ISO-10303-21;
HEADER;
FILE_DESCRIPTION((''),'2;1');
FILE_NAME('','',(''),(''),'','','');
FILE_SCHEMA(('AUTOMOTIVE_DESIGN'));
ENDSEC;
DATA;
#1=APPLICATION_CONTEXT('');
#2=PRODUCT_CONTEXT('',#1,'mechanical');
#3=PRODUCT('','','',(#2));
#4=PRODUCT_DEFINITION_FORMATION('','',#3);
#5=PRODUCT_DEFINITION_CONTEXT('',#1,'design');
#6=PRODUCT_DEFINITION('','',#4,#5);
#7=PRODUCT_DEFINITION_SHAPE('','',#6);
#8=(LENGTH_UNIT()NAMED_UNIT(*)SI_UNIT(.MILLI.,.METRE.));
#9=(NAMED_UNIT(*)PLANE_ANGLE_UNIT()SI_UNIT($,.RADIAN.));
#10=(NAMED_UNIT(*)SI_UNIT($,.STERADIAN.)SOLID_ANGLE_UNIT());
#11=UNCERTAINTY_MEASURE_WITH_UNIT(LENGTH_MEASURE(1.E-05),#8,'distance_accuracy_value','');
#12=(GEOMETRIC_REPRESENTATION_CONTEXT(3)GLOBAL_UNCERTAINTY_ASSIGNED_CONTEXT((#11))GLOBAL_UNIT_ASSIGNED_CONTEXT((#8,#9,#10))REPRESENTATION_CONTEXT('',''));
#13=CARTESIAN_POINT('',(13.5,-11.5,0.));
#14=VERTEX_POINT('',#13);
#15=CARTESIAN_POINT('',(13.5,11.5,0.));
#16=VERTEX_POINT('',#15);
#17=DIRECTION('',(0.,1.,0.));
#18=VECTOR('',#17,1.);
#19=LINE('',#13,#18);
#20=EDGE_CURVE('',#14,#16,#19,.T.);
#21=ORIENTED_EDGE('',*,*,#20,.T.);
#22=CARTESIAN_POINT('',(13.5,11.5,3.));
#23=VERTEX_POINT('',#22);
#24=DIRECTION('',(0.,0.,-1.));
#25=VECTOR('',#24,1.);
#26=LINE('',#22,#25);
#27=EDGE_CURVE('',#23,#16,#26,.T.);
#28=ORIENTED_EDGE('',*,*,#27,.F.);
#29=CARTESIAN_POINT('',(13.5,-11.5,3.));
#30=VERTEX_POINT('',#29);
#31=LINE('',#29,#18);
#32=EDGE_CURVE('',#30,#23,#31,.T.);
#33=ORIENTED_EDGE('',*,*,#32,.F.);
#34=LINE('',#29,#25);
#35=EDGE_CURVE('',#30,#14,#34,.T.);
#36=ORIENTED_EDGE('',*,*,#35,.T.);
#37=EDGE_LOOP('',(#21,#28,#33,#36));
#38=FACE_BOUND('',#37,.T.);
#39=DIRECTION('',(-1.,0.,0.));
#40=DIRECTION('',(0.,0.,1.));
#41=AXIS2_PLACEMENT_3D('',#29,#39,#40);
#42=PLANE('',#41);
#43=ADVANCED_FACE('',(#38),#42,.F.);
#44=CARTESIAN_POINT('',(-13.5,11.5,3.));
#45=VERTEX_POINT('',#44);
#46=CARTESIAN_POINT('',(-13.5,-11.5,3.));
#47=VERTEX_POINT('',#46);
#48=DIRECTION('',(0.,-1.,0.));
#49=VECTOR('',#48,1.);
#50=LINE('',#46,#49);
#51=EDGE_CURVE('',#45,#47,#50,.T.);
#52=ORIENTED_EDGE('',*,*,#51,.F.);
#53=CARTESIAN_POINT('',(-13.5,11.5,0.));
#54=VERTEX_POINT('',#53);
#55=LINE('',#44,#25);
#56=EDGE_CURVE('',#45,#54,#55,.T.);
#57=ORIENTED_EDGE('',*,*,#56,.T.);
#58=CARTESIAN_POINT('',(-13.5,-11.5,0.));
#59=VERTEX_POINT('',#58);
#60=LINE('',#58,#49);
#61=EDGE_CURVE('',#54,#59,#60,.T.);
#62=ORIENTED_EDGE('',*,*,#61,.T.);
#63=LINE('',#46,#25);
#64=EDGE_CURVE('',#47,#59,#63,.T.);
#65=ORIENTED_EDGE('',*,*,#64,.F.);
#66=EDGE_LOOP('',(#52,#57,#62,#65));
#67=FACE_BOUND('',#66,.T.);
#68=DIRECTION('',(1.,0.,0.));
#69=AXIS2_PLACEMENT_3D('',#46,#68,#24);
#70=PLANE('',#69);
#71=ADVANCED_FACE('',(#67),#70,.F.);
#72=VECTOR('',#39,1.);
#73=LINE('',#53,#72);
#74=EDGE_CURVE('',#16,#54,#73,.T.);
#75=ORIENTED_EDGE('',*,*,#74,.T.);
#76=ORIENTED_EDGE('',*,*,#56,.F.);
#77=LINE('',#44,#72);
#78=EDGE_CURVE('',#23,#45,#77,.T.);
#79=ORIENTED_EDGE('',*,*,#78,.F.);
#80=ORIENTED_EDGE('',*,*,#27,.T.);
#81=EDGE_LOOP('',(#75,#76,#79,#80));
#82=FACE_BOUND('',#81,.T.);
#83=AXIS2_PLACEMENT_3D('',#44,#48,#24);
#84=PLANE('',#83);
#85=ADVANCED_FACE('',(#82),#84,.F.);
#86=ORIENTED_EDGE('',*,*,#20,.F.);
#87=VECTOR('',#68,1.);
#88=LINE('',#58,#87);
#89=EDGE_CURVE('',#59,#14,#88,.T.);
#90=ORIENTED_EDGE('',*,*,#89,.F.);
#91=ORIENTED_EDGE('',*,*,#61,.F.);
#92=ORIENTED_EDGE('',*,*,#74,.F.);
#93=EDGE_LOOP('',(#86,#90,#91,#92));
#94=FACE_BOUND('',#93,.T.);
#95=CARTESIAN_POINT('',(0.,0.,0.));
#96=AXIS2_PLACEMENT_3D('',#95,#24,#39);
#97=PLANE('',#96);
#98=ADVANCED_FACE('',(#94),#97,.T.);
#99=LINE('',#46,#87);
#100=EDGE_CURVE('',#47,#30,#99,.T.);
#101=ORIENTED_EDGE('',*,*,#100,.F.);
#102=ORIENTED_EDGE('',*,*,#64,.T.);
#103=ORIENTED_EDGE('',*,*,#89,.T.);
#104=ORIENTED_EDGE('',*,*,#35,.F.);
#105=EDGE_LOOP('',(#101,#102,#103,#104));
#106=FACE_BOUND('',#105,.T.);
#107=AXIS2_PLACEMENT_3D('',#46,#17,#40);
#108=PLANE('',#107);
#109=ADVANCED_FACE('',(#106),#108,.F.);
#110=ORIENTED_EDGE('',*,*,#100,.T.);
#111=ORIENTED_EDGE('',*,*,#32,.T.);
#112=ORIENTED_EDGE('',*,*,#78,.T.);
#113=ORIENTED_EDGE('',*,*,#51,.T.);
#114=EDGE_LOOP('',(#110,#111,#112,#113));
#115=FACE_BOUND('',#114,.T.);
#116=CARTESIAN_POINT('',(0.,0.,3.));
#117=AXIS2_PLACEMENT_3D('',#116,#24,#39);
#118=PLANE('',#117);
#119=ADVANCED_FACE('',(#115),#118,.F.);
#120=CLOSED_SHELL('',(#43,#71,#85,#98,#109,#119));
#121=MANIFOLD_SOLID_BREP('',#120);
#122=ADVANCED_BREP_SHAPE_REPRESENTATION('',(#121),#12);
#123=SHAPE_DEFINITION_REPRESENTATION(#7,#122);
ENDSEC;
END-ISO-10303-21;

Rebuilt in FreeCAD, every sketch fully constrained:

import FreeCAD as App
import Part
import Sketcher

doc = App.newDocument("Part")
body = doc.addObject("PartDesign::Body", "Body")

# Sketch on XY plane
sketch1 = body.newObject("Sketcher::SketchObject", "Sketch")
sketch1.AttachmentSupport = (doc.getObject("XY_Plane"), [""])
sketch1.MapMode = "FlatFace"
sketch1.addGeometry([
    Part.LineSegment(App.Vector(-14, 12, 0), App.Vector(-14, -12, 0)),
    Part.LineSegment(App.Vector(-14, -12, 0), App.Vector(14, -12, 0)),
    Part.LineSegment(App.Vector(14, -12, 0), App.Vector(14, 12, 0)),
    Part.LineSegment(App.Vector(14, 12, 0), App.Vector(-14, 12, 0)),
], False)
sketch1.addConstraint([
    Sketcher.Constraint("Coincident", 0, 2, 1, 1),
    Sketcher.Constraint("Coincident", 1, 2, 2, 1),
    Sketcher.Constraint("Coincident", 2, 2, 3, 1),
    Sketcher.Constraint("Coincident", 3, 2, 0, 1),
    Sketcher.Constraint("Vertical", 0),
    Sketcher.Constraint("Horizontal", 1),
    Sketcher.Constraint("Vertical", 2),
    Sketcher.Constraint("Horizontal", 3),
    Sketcher.Constraint("Symmetric", 0, 2, 2, 2, -1, 1),
    Sketcher.Constraint("DistanceX", 1, 1, 1, 2, 27.0),
    Sketcher.Constraint("DistanceY", 0, 2, 0, 1, 23.0),
])
pad1 = body.newObject("PartDesign::Pad", "Pad")
pad1.Profile = sketch1
pad1.Length = 3

doc.recompute()
